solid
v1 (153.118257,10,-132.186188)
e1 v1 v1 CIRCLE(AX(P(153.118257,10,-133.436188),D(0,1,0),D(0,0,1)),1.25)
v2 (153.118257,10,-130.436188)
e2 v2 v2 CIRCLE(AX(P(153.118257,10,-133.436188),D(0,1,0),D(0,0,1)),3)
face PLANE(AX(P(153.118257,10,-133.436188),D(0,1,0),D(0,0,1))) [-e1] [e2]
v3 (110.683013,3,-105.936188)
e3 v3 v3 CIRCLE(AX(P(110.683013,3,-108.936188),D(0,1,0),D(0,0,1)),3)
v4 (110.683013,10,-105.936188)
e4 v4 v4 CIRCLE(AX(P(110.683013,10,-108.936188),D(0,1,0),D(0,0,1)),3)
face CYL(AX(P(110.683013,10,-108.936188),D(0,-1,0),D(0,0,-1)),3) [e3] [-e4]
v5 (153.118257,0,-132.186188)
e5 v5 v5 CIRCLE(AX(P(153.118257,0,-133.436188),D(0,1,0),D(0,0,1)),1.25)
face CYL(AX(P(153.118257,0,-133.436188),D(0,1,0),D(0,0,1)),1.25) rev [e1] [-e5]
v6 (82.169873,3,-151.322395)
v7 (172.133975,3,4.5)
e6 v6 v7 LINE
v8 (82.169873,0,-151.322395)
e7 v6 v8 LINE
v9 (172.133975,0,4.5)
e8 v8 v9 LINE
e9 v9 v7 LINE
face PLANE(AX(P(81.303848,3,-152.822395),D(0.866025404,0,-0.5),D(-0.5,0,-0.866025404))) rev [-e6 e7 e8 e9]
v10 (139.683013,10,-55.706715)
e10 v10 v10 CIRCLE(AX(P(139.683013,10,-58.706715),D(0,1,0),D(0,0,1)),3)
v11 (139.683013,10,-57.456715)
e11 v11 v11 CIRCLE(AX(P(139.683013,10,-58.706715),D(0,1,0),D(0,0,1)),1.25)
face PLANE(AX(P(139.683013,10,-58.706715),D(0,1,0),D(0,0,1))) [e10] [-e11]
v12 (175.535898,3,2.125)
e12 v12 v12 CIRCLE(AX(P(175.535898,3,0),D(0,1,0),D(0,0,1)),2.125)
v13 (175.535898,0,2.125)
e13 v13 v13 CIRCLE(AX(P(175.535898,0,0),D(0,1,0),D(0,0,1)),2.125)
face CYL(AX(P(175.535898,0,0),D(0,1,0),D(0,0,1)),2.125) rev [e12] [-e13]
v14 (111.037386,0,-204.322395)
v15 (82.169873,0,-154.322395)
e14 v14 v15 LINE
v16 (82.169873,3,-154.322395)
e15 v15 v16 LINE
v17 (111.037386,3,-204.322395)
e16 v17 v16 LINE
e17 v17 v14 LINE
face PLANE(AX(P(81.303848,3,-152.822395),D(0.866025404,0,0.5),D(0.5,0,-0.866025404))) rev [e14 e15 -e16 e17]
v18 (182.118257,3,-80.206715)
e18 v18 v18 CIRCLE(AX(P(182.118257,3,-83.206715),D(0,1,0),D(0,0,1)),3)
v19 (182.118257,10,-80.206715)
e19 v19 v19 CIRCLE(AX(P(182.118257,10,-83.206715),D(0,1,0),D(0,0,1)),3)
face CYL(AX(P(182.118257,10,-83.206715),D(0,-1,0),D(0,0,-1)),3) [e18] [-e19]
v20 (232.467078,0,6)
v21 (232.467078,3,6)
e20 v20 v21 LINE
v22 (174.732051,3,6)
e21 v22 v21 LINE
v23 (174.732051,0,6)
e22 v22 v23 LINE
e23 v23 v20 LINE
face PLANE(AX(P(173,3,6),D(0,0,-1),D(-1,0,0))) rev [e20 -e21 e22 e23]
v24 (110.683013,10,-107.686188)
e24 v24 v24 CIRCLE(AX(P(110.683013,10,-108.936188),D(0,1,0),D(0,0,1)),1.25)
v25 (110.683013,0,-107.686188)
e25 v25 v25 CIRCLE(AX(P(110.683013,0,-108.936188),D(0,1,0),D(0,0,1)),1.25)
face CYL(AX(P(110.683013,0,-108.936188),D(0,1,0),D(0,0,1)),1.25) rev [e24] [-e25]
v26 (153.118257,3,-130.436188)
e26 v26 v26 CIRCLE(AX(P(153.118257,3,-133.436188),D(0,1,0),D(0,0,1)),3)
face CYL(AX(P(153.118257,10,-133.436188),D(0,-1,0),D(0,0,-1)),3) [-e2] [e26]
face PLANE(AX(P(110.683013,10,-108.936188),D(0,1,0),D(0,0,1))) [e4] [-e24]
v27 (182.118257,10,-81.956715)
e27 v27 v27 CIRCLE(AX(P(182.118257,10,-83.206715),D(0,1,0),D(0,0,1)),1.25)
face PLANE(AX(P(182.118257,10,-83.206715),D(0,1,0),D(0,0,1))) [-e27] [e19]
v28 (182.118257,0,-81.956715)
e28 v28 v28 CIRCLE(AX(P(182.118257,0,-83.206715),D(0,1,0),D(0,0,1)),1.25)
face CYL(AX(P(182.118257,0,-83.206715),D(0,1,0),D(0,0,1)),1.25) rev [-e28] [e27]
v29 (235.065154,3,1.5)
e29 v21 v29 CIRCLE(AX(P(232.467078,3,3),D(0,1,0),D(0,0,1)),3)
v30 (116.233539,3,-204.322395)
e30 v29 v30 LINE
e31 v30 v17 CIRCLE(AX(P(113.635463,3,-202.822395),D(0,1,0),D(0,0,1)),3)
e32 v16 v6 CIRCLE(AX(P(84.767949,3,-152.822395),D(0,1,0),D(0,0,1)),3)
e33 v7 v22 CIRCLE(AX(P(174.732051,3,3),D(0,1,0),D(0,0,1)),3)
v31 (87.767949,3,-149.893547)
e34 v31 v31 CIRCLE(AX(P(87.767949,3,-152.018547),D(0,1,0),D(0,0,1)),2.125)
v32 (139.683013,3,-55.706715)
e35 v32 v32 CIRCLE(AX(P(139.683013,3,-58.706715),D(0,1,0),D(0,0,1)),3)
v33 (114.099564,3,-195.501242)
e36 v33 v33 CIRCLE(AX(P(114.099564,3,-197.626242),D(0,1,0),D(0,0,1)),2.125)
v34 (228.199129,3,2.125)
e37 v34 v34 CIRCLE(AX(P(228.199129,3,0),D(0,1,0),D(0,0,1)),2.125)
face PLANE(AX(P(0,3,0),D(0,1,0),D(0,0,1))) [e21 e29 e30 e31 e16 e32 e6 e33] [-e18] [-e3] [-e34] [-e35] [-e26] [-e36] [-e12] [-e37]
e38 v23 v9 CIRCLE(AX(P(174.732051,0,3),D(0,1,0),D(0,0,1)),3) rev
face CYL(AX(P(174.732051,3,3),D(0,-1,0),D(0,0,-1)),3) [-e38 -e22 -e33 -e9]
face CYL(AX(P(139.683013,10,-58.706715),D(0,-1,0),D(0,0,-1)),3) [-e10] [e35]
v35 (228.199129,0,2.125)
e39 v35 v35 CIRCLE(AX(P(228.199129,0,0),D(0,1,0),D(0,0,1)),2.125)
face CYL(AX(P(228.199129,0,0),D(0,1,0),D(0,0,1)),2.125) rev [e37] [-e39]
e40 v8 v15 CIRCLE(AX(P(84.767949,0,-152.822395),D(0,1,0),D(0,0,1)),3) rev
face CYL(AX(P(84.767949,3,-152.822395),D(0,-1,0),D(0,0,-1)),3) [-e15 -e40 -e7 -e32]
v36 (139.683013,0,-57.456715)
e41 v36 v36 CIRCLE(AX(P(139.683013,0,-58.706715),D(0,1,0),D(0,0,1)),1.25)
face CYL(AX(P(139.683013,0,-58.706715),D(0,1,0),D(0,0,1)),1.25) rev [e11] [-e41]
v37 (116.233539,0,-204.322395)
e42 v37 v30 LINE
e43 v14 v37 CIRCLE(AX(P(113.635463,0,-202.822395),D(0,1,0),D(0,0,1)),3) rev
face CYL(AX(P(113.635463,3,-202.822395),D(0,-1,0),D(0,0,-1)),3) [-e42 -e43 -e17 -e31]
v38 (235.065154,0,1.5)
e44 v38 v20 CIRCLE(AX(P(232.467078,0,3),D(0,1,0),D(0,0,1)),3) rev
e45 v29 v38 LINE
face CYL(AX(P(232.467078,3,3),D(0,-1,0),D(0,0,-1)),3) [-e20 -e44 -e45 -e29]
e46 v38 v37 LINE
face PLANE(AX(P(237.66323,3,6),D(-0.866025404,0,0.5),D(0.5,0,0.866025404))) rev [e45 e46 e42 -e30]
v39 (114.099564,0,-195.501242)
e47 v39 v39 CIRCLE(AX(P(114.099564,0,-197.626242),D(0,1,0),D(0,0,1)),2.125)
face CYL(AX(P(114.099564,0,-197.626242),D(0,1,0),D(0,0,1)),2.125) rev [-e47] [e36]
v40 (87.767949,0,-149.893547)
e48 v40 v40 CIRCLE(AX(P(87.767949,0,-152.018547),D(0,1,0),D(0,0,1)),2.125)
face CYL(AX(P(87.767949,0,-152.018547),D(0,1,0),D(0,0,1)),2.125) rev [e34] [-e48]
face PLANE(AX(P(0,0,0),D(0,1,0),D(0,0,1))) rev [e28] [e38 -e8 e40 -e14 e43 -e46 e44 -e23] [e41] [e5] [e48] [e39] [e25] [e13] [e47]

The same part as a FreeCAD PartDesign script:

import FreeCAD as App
import Part
import Sketcher

V = App.Vector
Q = App.Units.Quantity


def edges_at(feature, points):
    """Names of the edges that pass closest to the given points."""
    edges = feature.Shape.Edges
    near = lambda p: min(range(len(edges)), key=lambda i: edges[i].distToShape(Part.Vertex(*p))[0])
    return sorted({f"Edge{near(p) + 1}" for p in points})

doc = App.newDocument("Part")
body = doc.addObject("PartDesign::Body", "Body")

# Sketch on XZ plane
sketch1 = body.newObject("Sketcher::SketchObject", "Sketch")
sketch1.AttachmentSupport = (doc.getObject("XZ_Plane"), [""])
sketch1.MapMode = "FlatFace"
sketch1.addGeometry([
    Part.LineSegment(V(114, -209, 0), V(81, -153, 0)),
    Part.LineSegment(V(81, -153, 0), V(173, 6, 0)),
    Part.LineSegment(V(173, 6, 0), V(238, 6, 0)),
    Part.LineSegment(V(238, 6, 0), V(114, -209, 0)),
], False)
sketch1.addConstraint([
    Sketcher.Constraint("Coincident", 0, 2, 1, 1),
    Sketcher.Constraint("Coincident", 1, 2, 2, 1),
    Sketcher.Constraint("Coincident", 2, 2, 3, 1),
    Sketcher.Constraint("Coincident", 3, 2, 0, 1),
    Sketcher.Constraint("Horizontal", 2),
    Sketcher.Constraint("Parallel", 1, 3),
    Sketcher.Constraint("Angle", 0, Q("120 deg")),
    Sketcher.Constraint("Angle", 1, Q("60 deg")),
    Sketcher.Constraint("DistanceX", -1, 1, 1, 2, 173.0),
    Sketcher.Constraint("DistanceY", -1, 1, 1, 2, 6.0),
    Sketcher.Constraint("DistanceY", 3, 2, 0, 2, 56.0),
    Sketcher.Constraint("Distance", 1, 183.392305),
])
pad1 = body.newObject("PartDesign::Pad", "Pad")
pad1.Profile = sketch1
pad1.Length = 3
pad1.Reversed = True
doc.recompute()

fillet = body.newObject("PartDesign::Fillet", "Fillet")
fillet.Base = (pad1, edges_at(pad1, [
    (173, 1.5, 6),
    (81.304, 1.5, -152.822),
    (113.635, 1.5, -208.822),
    (237.663, 1.5, 6),
]))
fillet.Radius = 3

# Sketch on XZ plane
sketch2 = body.newObject("Sketcher::SketchObject", "Sketch001")
sketch2.AttachmentSupport = (doc.getObject("XZ_Plane"), [""])
sketch2.MapMode = "FlatFace"
sketch2.AttachmentOffset = App.Placement(V(0, 0, -3), App.Rotation())
sketch2.addGeometry([
    Part.Circle(V(110.7, -108.9, 0), V(0, 0, 1), 3),
    Part.Circle(V(153.1, -133.4, 0), V(0, 0, 1), 3),
    Part.Circle(V(182.1, -83.2, 0), V(0, 0, 1), 3),
    Part.Circle(V(139.7, -58.7, 0), V(0, 0, 1), 3),
], False)
sketch2.addConstraint([
    Sketcher.Constraint("Equal", 0, 1),
    Sketcher.Constraint("Equal", 1, 2),
    Sketcher.Constraint("Equal", 2, 3),
    Sketcher.Constraint("Diameter", 0, 6.0),
    Sketcher.Constraint("DistanceX", 1, 3, 2, 3, 29.0),
    Sketcher.Constraint("DistanceX", 0, 3, 3, 3, 29.0),
    Sketcher.Constraint("DistanceY", 1, 3, 0, 3, 24.5),
    Sketcher.Constraint("DistanceY", 2, 3, 3, 3, 24.5),
    Sketcher.Constraint("DistanceY", 0, 3, -1, 1, 108.936188),
    Sketcher.Constraint("DistanceX", -1, 1, 0, 3, 110.683013),
    Sketcher.Constraint("DistanceX", -1, 1, 1, 3, 153.118257),
    Sketcher.Constraint("DistanceY", 2, 3, -1, 1, 83.206715),
])
pad2 = body.newObject("PartDesign::Pad", "Pad001")
pad2.Profile = sketch2
pad2.Length = 7
pad2.Reversed = True

# Sketch on XZ plane
sketch3 = body.newObject("Sketcher::SketchObject", "Sketch002")
sketch3.AttachmentSupport = (doc.getObject("XZ_Plane"), [""])
sketch3.MapMode = "FlatFace"
sketch3.AttachmentOffset = App.Placement(V(0, 0, -10), App.Rotation())
sketch3.addGeometry([
    Part.Circle(V(110.7, -108.9, 0), V(0, 0, 1), 1.2),
    Part.Circle(V(153.1, -133.4, 0), V(0, 0, 1), 1.2),
    Part.Circle(V(182.1, -83.2, 0), V(0, 0, 1), 1.2),
    Part.Circle(V(139.7, -58.7, 0), V(0, 0, 1), 1.2),
], False)
sketch3.addConstraint([
    Sketcher.Constraint("Equal", 0, 1),
    Sketcher.Constraint("Equal", 1, 2),
    Sketcher.Constraint("Equal", 2, 3),
    Sketcher.Constraint("Diameter", 0, 2.5),
    Sketcher.Constraint("DistanceX", 1, 3, 2, 3, 29.0),
    Sketcher.Constraint("DistanceX", 0, 3, 3, 3, 29.0),
    Sketcher.Constraint("DistanceY", 1, 3, 0, 3, 24.5),
    Sketcher.Constraint("DistanceY", 2, 3, 3, 3, 24.5),
    Sketcher.Constraint("DistanceY", 0, 3, -1, 1, 108.936188),
    Sketcher.Constraint("DistanceX", -1, 1, 0, 3, 110.683013),
    Sketcher.Constraint("DistanceX", -1, 1, 1, 3, 153.118257),
    Sketcher.Constraint("DistanceY", 2, 3, -1, 1, 83.206715),
])
pocket1 = body.newObject("PartDesign::Pocket", "Pocket")
pocket1.Profile = sketch3
pocket1.Type = "ThroughAll"
pocket1.Reversed = True

# Sketch on XZ plane
sketch4 = body.newObject("Sketcher::SketchObject", "Sketch003")
sketch4.AttachmentSupport = (doc.getObject("XZ_Plane"), [""])
sketch4.MapMode = "FlatFace"
sketch4.AttachmentOffset = App.Placement(V(0, 0, -3), App.Rotation())
sketch4.addGeometry([
    Part.Circle(V(87.8, -152, 0), V(0, 0, 1), 2.1),
    Part.Circle(V(114.1, -197.6, 0), V(0, 0, 1), 2.1),
    Part.Circle(V(175.5, 0, 0), V(0, 0, 1), 2.1),
    Part.Circle(V(228.2, 0, 0), V(0, 0, 1), 2.1),
], False)
sketch4.addConstraint([
    Sketcher.Constraint("Equal", 0, 1),
    Sketcher.Constraint("Equal", 1, 2),
    Sketcher.Constraint("Equal", 2, 3),
    Sketcher.Constraint("PointOnObject", 2, 3, -1),
    Sketcher.Constraint("PointOnObject", 3, 3, -1),
    Sketcher.Constraint("Diameter", 0, 4.25),
    Sketcher.Constraint("DistanceX", -1, 1, 2, 3, 175.535898),
    Sketcher.Constraint("DistanceX", -1, 1, 0, 3, 87.767949),
    Sketcher.Constraint("DistanceX", -1, 1, 3, 3, 228.199129),
    Sketcher.Constraint("DistanceY", 0, 3, -1, 1, 152.018547),
    Sketcher.Constraint("DistanceX", -1, 1, 1, 3, 114.099564),
    Sketcher.Constraint("DistanceY", 1, 3, -1, 1, 197.626242),
])
pocket2 = body.newObject("PartDesign::Pocket", "Pocket001")
pocket2.Profile = sketch4
pocket2.Type = "ThroughAll"
pocket2.Reversed = True

doc.recompute()
